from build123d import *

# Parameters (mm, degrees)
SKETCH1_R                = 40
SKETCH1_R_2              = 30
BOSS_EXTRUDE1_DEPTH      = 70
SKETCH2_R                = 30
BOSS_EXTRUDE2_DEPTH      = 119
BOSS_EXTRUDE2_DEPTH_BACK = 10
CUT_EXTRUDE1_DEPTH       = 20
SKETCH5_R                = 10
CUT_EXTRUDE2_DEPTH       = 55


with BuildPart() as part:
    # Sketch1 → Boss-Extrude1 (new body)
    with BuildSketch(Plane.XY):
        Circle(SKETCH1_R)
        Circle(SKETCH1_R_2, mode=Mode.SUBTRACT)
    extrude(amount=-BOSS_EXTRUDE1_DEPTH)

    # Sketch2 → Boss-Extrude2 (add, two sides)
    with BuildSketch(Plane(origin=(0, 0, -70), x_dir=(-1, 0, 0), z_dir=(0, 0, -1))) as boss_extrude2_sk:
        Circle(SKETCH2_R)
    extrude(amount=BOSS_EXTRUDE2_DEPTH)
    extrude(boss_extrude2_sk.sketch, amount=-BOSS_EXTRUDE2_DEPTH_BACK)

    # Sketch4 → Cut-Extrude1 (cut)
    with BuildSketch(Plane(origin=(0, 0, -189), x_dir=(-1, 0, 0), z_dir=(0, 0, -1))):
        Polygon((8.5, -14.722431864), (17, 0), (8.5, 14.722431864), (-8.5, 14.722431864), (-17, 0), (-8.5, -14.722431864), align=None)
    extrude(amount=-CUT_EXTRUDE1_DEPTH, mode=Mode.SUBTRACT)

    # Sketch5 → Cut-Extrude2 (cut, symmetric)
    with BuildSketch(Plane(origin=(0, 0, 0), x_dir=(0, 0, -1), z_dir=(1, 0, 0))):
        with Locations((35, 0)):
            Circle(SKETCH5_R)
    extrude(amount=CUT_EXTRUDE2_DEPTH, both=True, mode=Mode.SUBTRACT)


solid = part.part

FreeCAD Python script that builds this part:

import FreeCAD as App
import Part
import Sketcher

V = App.Vector
Q = App.Units.Quantity

doc = App.newDocument("Part")
body = doc.addObject("PartDesign::Body", "Body")

sketch1 = doc.addObject("Sketcher::SketchObject", "Sketch")
body.addObject(sketch1)
sketch1.AttachmentSupport = (doc.XY_Plane, [""])
sketch1.MapMode = "FlatFace"
sketch1.addGeometry(Part.Circle(V(0, 0, 0), V(0, 0, 1), 40), False)
sketch1.addGeometry(Part.Circle(V(0, 0, 0), V(0, 0, 1), 30), False)
sketch1.addConstraint(Sketcher.Constraint("Coincident", 0, 3, -1, 1))
sketch1.addConstraint(Sketcher.Constraint("Coincident", 1, 3, -1, 1))
sketch1.addConstraint(Sketcher.Constraint("Diameter", 0, 80.0))
sketch1.addConstraint(Sketcher.Constraint("Diameter", 1, 60.0))
pad1 = doc.addObject("PartDesign::Pad", "Pad")
body.addObject(pad1)
pad1.Profile = sketch1
pad1.Length = 70
pad1.Reversed = True

sketch2 = doc.addObject("Sketcher::SketchObject", "Sketch001")
body.addObject(sketch2)
sketch2.AttachmentSupport = (doc.XY_Plane, [""])
sketch2.MapMode = "FlatFace"
sketch2.AttachmentOffset = App.Placement(V(0, 0, -70), App.Rotation())
sketch2.addGeometry(Part.Circle(V(0, 0, 0), V(0, 0, 1), 30), False)
sketch2.addConstraint(Sketcher.Constraint("Coincident", 0, 3, -1, 1))
sketch2.addConstraint(Sketcher.Constraint("Diameter", 0, 60.0))
pad2 = doc.addObject("PartDesign::Pad", "Pad001")
body.addObject(pad2)
pad2.Profile = sketch2
pad2.Type = "TwoLengths"
pad2.Length = 119
pad2.Length2 = 10
pad2.Reversed = True

sketch3 = doc.addObject("Sketcher::SketchObject", "Sketch002")
body.addObject(sketch3)
sketch3.AttachmentSupport = (doc.XY_Plane, [""])
sketch3.MapMode = "FlatFace"
sketch3.AttachmentOffset = App.Placement(V(0, 0, -189), App.Rotation())
sketch3.addGeometry(Part.LineSegment(V(-8.5, -14.722432, 0), V(-17, 0, 0)), False)
sketch3.addGeometry(Part.LineSegment(V(-17, 0, 0), V(-8.5, 14.722432, 0)), False)
sketch3.addGeometry(Part.LineSegment(V(-8.5, 14.722432, 0), V(8.5, 14.722432, 0)), False)
sketch3.addGeometry(Part.LineSegment(V(8.5, 14.722432, 0), V(17, 0, 0)), False)
sketch3.addGeometry(Part.LineSegment(V(17, 0, 0), V(8.5, -14.722432, 0)), False)
sketch3.addGeometry(Part.LineSegment(V(8.5, -14.722432, 0), V(-8.5, -14.722432, 0)), False)
sketch3.addConstraint(Sketcher.Constraint("Coincident", 0, 2, 1, 1))
sketch3.addConstraint(Sketcher.Constraint("Coincident", 1, 2, 2, 1))
sketch3.addConstraint(Sketcher.Constraint("Coincident", 2, 2, 3, 1))
sketch3.addConstraint(Sketcher.Constraint("Coincident", 3, 2, 4, 1))
sketch3.addConstraint(Sketcher.Constraint("Coincident", 4, 2, 5, 1))
sketch3.addConstraint(Sketcher.Constraint("Coincident", 5, 2, 0, 1))
sketch3.addConstraint(Sketcher.Constraint("Horizontal", 2))
sketch3.addConstraint(Sketcher.Constraint("Horizontal", 5))
sketch3.addConstraint(Sketcher.Constraint("Symmetric", 0, 2, 3, 2, -1, 1))
sketch3.addConstraint(Sketcher.Constraint("Symmetric", 1, 2, 4, 2, -1, 1))
sketch3.addConstraint(Sketcher.Constraint("PointOnObject", 0, 2, -1))
sketch3.addConstraint(Sketcher.Constraint("Parallel", 0, 3))
sketch3.addConstraint(Sketcher.Constraint("Vertical", 2, 2, 4, 2))
sketch3.addConstraint(Sketcher.Constraint("DistanceX", 2, 1, 2, 2, 17.0))
sketch3.addConstraint(Sketcher.Constraint("Angle", 0, Q("120 deg")))
sketch3.addConstraint(Sketcher.Constraint("Distance", 0, 17.0))
pocket1 = doc.addObject("PartDesign::Pocket", "Pocket")
body.addObject(pocket1)
pocket1.Profile = sketch3
pocket1.Length = 20
pocket1.Reversed = True

sketch4 = doc.addObject("Sketcher::SketchObject", "Sketch003")
body.addObject(sketch4)
sketch4.AttachmentSupport = (doc.YZ_Plane, [""])
sketch4.MapMode = "FlatFace"
sketch4.addGeometry(Part.Circle(V(0, -35, 0), V(0, 0, 1), 10), False)
sketch4.addConstraint(Sketcher.Constraint("PointOnObject", 0, 3, -2))
sketch4.addConstraint(Sketcher.Constraint("Diameter", 0, 20.0))
sketch4.addConstraint(Sketcher.Constraint("DistanceY", 0, 3, -1, 1, 35.0))
pocket2 = doc.addObject("PartDesign::Pocket", "Pocket001")
body.addObject(pocket2)
pocket2.Profile = sketch4
pocket2.Length = 110
pocket2.Midplane = True

doc.recompute()
